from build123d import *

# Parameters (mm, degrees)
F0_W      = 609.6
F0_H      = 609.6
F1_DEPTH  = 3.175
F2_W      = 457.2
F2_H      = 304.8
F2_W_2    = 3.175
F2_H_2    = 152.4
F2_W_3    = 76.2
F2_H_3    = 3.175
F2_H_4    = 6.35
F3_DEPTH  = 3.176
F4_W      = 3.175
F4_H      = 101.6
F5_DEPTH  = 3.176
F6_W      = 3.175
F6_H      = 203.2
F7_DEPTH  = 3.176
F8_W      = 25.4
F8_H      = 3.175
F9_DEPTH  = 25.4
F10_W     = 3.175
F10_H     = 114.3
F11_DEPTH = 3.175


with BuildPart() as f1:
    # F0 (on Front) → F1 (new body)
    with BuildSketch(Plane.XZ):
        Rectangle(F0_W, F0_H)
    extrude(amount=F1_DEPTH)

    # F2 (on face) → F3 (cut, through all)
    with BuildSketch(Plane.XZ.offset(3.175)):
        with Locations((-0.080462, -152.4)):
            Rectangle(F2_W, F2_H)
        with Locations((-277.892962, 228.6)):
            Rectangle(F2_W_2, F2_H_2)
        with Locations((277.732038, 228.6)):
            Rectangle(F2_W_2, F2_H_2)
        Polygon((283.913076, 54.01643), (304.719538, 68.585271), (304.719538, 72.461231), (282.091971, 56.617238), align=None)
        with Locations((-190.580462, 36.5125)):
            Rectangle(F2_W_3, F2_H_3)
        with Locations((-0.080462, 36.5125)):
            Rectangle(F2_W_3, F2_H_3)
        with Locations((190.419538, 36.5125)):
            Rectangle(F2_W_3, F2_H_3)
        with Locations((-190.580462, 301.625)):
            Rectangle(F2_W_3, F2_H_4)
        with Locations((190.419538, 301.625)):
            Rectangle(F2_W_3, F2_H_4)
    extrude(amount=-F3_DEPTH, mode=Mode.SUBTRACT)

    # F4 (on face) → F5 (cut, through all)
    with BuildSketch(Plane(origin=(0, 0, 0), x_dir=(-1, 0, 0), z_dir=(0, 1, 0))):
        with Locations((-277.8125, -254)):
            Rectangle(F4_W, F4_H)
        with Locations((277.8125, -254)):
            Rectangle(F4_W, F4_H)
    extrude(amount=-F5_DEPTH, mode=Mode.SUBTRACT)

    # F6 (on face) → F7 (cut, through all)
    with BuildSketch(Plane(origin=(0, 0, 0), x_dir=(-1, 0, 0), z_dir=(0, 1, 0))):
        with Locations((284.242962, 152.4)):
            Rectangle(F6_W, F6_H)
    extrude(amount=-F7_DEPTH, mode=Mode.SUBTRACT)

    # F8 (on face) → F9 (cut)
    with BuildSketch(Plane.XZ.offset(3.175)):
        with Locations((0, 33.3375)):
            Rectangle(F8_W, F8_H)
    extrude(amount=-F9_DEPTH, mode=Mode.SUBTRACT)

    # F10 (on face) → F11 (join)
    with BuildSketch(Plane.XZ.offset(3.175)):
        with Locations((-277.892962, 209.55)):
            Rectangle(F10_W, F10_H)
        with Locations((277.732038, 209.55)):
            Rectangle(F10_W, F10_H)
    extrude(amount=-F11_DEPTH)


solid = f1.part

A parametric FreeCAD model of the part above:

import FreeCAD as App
import Part
import Sketcher
from FreeCAD import Vector
Q = App.Units.Quantity


def add_polygon(sketch, points):
    """Adds a closed chain of lines whose ends are joined by coincident constraints."""
    first, n = sketch.GeometryCount, len(points)
    for a, b in zip(points, points[1:] + points[:1]):
        sketch.addGeometry(Part.LineSegment(App.Vector(*a, 0), App.Vector(*b, 0)), False)
    for i in range(n):
        sketch.addConstraint(Sketcher.Constraint("Coincident", first + i, 2, first + (i + 1) % n, 1))

doc = App.newDocument("Part")
body = doc.addObject("PartDesign::Body", "Body")

# Sketch on XZ plane
sketch1 = body.newObject("Sketcher::SketchObject", "Sketch")
sketch1.AttachmentSupport = (doc.getObject("XZ_Plane"), [""])
sketch1.MapMode = "FlatFace"
add_polygon(sketch1, [(-304.8, 304.8), (-304.8, -304.8), (304.8, -304.8), (304.8, 304.8)])  # lines 0-3
sketch1.addConstraint(Sketcher.Constraint("Vertical", 0))
sketch1.addConstraint(Sketcher.Constraint("Horizontal", 1))
sketch1.addConstraint(Sketcher.Constraint("Vertical", 2))
sketch1.addConstraint(Sketcher.Constraint("Horizontal", 3))
sketch1.addConstraint(Sketcher.Constraint("Symmetric", 0, 2, 2, 2, -1, 1))
sketch1.addConstraint(Sketcher.Constraint("Equal", 3, 0))
sketch1.addConstraint(Sketcher.Constraint("DistanceX", 1, 1, 1, 2, Q("24 in")))
pad1 = body.newObject("PartDesign::Pad", "Pad")
pad1.Profile = sketch1
pad1.Length = Q("0.125 in")

# Sketch on XZ plane
sketch2 = body.newObject("Sketcher::SketchObject", "Sketch001")
sketch2.AttachmentSupport = (doc.getObject("XZ_Plane"), [""])
sketch2.MapMode = "FlatFace"
sketch2.AttachmentOffset = App.Placement(Vector(0, 0, 0.125 * 25.4), App.Rotation())
add_polygon(sketch2, [(-228.680462, 0), (-228.680462, -304.8), (228.519538, -304.8), (228.519538, 0)])  # lines 0-3
add_polygon(sketch2, [(-279.480462, 304.8), (-279.480462, 152.4), (-276.305462, 152.4), (-276.305462, 304.8)])  # lines 4-7
add_polygon(sketch2, [(276.144538, 304.8), (276.144538, 152.4), (279.319538, 152.4), (279.319538, 304.8)])  # lines 8-11
add_polygon(sketch2, [(283.913076, 54.01643), (304.719538, 68.585271), (304.719538, 72.461231), (282.091971, 56.617238)])  # lines 12-15
add_polygon(sketch2, [(-228.680462, 38.1), (-228.680462, 34.925), (-152.480462, 34.925), (-152.480462, 38.1)])  # lines 16-19
add_polygon(sketch2, [(-38.180462, 38.1), (-38.180462, 34.925), (38.019538, 34.925), (38.019538, 38.1)])  # lines 20-23
add_polygon(sketch2, [(152.319538, 38.1), (152.319538, 34.925), (228.519538, 34.925), (228.519538, 38.1)])  # lines 24-27
add_polygon(sketch2, [(-228.680462, 304.8), (-228.680462, 298.45), (-152.480462, 298.45), (-152.480462, 304.8)])  # lines 28-31
add_polygon(sketch2, [(152.319538, 304.8), (152.319538, 298.45), (228.519538, 298.45), (228.519538, 304.8)])  # lines 32-35
sketch2.addConstraint(Sketcher.Constraint("Vertical", 0))
sketch2.addConstraint(Sketcher.Constraint("Horizontal", 1))
sketch2.addConstraint(Sketcher.Constraint("Vertical", 2))
sketch2.addConstraint(Sketcher.Constraint("Horizontal", 3))
sketch2.addConstraint(Sketcher.Constraint("Vertical", 4))
sketch2.addConstraint(Sketcher.Constraint("Horizontal", 5))
sketch2.addConstraint(Sketcher.Constraint("Vertical", 6))
sketch2.addConstraint(Sketcher.Constraint("Horizontal", 7))
sketch2.addConstraint(Sketcher.Constraint("Vertical", 8))
sketch2.addConstraint(Sketcher.Constraint("Horizontal", 9))
sketch2.addConstraint(Sketcher.Constraint("Vertical", 10))
sketch2.addConstraint(Sketcher.Constraint("Horizontal", 11))
sketch2.addConstraint(Sketcher.Constraint("Vertical", 13))
sketch2.addConstraint(Sketcher.Constraint("Vertical", 16))
sketch2.addConstraint(Sketcher.Constraint("Horizontal", 17))
sketch2.addConstraint(Sketcher.Constraint("Vertical", 18))
sketch2.addConstraint(Sketcher.Constraint("Horizontal", 19))
sketch2.addConstraint(Sketcher.Constraint("Vertical", 20))
sketch2.addConstraint(Sketcher.Constraint("Horizontal", 21))
sketch2.addConstraint(Sketcher.Constraint("Vertical", 22))
sketch2.addConstraint(Sketcher.Constraint("Horizontal", 23))
sketch2.addConstraint(Sketcher.Constraint("Vertical", 24))
sketch2.addConstraint(Sketcher.Constraint("Horizontal", 25))
sketch2.addConstraint(Sketcher.Constraint("Vertical", 26))
sketch2.addConstraint(Sketcher.Constraint("Horizontal", 27))
sketch2.addConstraint(Sketcher.Constraint("Vertical", 28))
sketch2.addConstraint(Sketcher.Constraint("Horizontal", 29))
sketch2.addConstraint(Sketcher.Constraint("Vertical", 30))
sketch2.addConstraint(Sketcher.Constraint("Horizontal", 31))
sketch2.addConstraint(Sketcher.Constraint("Vertical", 32))
sketch2.addConstraint(Sketcher.Constraint("Horizontal", 33))
sketch2.addConstraint(Sketcher.Constraint("Vertical", 34))
sketch2.addConstraint(Sketcher.Constraint("Horizontal", 35))
sketch2.addConstraint(Sketcher.Constraint("Symmetric", 0, 2, 31, 2, -1))
sketch2.addConstraint(Sketcher.Constraint("Symmetric", 1, 2, 34, 2, -1))
sketch2.addConstraint(Sketcher.Constraint("PointOnObject", 2, 2, -1))
sketch2.addConstraint(Sketcher.Constraint("Parallel", 12, 14))
sketch2.addConstraint(Sketcher.Constraint("Perpendicular", 14, 15))
sketch2.addConstraint(Sketcher.Constraint("Horizontal", 5, 2, 8, 2))
sketch2.addConstraint(Sketcher.Constraint("Horizontal", 7, 2, 10, 2))
sketch2.addConstraint(Sketcher.Constraint("Horizontal", 17, 2, 20, 2))
sketch2.addConstraint(Sketcher.Constraint("Horizontal", 19, 2, 22, 2))
sketch2.addConstraint(Sketcher.Constraint("Horizontal", 21, 2, 24, 2))
sketch2.addConstraint(Sketcher.Constraint("Horizontal", 23, 2, 26, 2))
sketch2.addConstraint(Sketcher.Constraint("Horizontal", 11, 2, 30, 2))
sketch2.addConstraint(Sketcher.Constraint("Horizontal", 29, 2, 32, 2))
sketch2.addConstraint(Sketcher.Constraint("Vertical", 3, 2, 16, 2))
sketch2.addConstraint(Sketcher.Constraint("Vertical", 2, 2, 25, 2))
sketch2.addConstraint(Sketcher.Constraint("Vertical", 18, 2, 29, 2))
sketch2.addConstraint(Sketcher.Constraint("Vertical", 27, 2, 32, 2))
sketch2.addConstraint(Sketcher.Constraint("Equal", 7, 9))
sketch2.addConstraint(Sketcher.Constraint("Equal", 19, 21))
sketch2.addConstraint(Sketcher.Constraint("Equal", 23, 25))
sketch2.addConstraint(Sketcher.Constraint("Equal", 11, 16))
sketch2.addConstraint(Sketcher.Constraint("DistanceX", 1, 1, 1, 2, Q("18 in")))
sketch2.addConstraint(Sketcher.Constraint("DistanceX", 17, 1, 17, 2, Q("3 in")))
sketch2.addConstraint(Sketcher.Constraint("DistanceY", 0, 2, 0, 1, Q("12 in")))
sketch2.addConstraint(Sketcher.Constraint("DistanceY", 4, 2, 4, 1, Q("6 in")))
sketch2.addConstraint(Sketcher.Constraint("Distance", 12, Q("1 in")))
sketch2.addConstraint(Sketcher.Constraint("Angle", 12, Q("34.999999 deg")))
sketch2.addConstraint(Sketcher.Constraint("DistanceX", 4, 2, 3, 2, Q("2 in")))
sketch2.addConstraint(Sketcher.Constraint("DistanceX", 2, 2, 9, 2, Q("2 in")))
sketch2.addConstraint(Sketcher.Constraint("DistanceX", 9, 2, 12, 2, Q("1 in")))
sketch2.addConstraint(Sketcher.Constraint("DistanceY", 28, 2, 28, 1, Q("0.25 in")))
sketch2.addConstraint(Sketcher.Constraint("DistanceY", -1, 1, 18, 2, Q("1.5 in")))
sketch2.addConstraint(Sketcher.Constraint("DistanceX", 17, 2, 20, 2, Q("4.5 in")))
sketch2.addConstraint(Sketcher.Constraint("DistanceX", 5, 1, 5, 2, Q("0.125 in")))
sketch2.addConstraint(Sketcher.Constraint("Distance", 15, Q("0.125 in")))
sketch2.addConstraint(Sketcher.Constraint("DistanceX", 0, 2, -1, 1, 228.680462))
sketch2.addConstraint(Sketcher.Constraint("DistanceY", -1, 1, 12, 2, 68.585271))
pocket1 = body.newObject("PartDesign::Pocket", "Pocket")
pocket1.Profile = sketch2
pocket1.Type = "ThroughAll"

# Sketch on XZ plane
sketch3 = body.newObject("Sketcher::SketchObject", "Sketch002")
sketch3.AttachmentSupport = (doc.getObject("XZ_Plane"), [""])
sketch3.MapMode = "FlatFace"
add_polygon(sketch3, [(279.4, -203.2), (279.4, -304.8), (276.225, -304.8), (276.225, -203.2)])  # lines 0-3
add_polygon(sketch3, [(-276.225, -203.2), (-276.225, -304.8), (-279.4, -304.8), (-279.4, -203.2)])  # lines 4-7
sketch3.addConstraint(Sketcher.Constraint("Vertical", 0))
sketch3.addConstraint(Sketcher.Constraint("Horizontal", 1))
sketch3.addConstraint(Sketcher.Constraint("Vertical", 2))
sketch3.addConstraint(Sketcher.Constraint("Horizontal", 3))
sketch3.addConstraint(Sketcher.Constraint("Vertical", 4))
sketch3.addConstraint(Sketcher.Constraint("Horizontal", 5))
sketch3.addConstraint(Sketcher.Constraint("Vertical", 6))
sketch3.addConstraint(Sketcher.Constraint("Horizontal", 7))
sketch3.addConstraint(Sketcher.Constraint("Symmetric", 1, 2, 4, 2, -2))
sketch3.addConstraint(Sketcher.Constraint("Symmetric", 3, 2, 6, 2, -2))
sketch3.addConstraint(Sketcher.Constraint("DistanceY", 0, 2, 0, 1, Q("4 in")))
sketch3.addConstraint(Sketcher.Constraint("DistanceX", -1, 1, 0, 2, Q("11 in")))
sketch3.addConstraint(Sketcher.Constraint("DistanceY", 0, 2, -1, 1, Q("12 in")))
sketch3.addConstraint(Sketcher.Constraint("DistanceX", 1, 2, 1, 1, Q("0.125 in")))
pocket2 = body.newObject("PartDesign::Pocket", "Pocket001")
pocket2.Profile = sketch3
pocket2.Type = "ThroughAll"
pocket2.Reversed = True

# Sketch on XZ plane
sketch4 = body.newObject("Sketcher::SketchObject", "Sketch003")
sketch4.AttachmentSupport = (doc.getObject("XZ_Plane"), [""])
sketch4.MapMode = "FlatFace"
add_polygon(sketch4, [(-282.655462, 254), (-282.655462, 50.8), (-285.830462, 50.8), (-285.830462, 254)])  # lines 0-3
sketch4.addConstraint(Sketcher.Constraint("Vertical", 0))
sketch4.addConstraint(Sketcher.Constraint("Horizontal", 1))
sketch4.addConstraint(Sketcher.Constraint("Vertical", 2))
sketch4.addConstraint(Sketcher.Constraint("Horizontal", 3))
sketch4.addConstraint(Sketcher.Constraint("DistanceY", 0, 2, 0, 1, Q("8 in")))
sketch4.addConstraint(Sketcher.Constraint("DistanceY", -1, 1, 0, 2, Q("2 in")))
sketch4.addConstraint(Sketcher.Constraint("DistanceX", 1, 2, 1, 1, Q("0.125 in")))
sketch4.addConstraint(Sketcher.Constraint("DistanceX", 0, 2, -1, 1, 282.655462))
pocket3 = body.newObject("PartDesign::Pocket", "Pocket002")
pocket3.Profile = sketch4
pocket3.Type = "ThroughAll"
pocket3.Reversed = True

# Sketch on XZ plane
sketch5 = body.newObject("Sketcher::SketchObject", "Sketch004")
sketch5.AttachmentSupport = (doc.getObject("XZ_Plane"), [""])
sketch5.MapMode = "FlatFace"
sketch5.AttachmentOffset = App.Placement(Vector(0, 0, 0.125 * 25.4), App.Rotation())
add_polygon(sketch5, [(-12.7, 34.925), (-12.7, 31.75), (12.7, 31.75), (12.7, 34.925)])  # lines 0-3
sketch5.addConstraint(Sketcher.Constraint("Vertical", 0))
sketch5.addConstraint(Sketcher.Constraint("Horizontal", 1))
sketch5.addConstraint(Sketcher.Constraint("Vertical", 2))
sketch5.addConstraint(Sketcher.Constraint("Horizontal", 3))
sketch5.addConstraint(Sketcher.Constraint("DistanceX", 1, 1, 1, 2, Q("1 in")))
sketch5.addConstraint(Sketcher.Constraint("DistanceX", 0, 2, -1, 1, Q("0.5 in")))
sketch5.addConstraint(Sketcher.Constraint("DistanceY", 0, 2, 0, 1, Q("0.125 in")))
sketch5.addConstraint(Sketcher.Constraint("DistanceY", -1, 1, 0, 2, Q("1.25 in")))
pocket4 = body.newObject("PartDesign::Pocket", "Pocket003")
pocket4.Profile = sketch5
pocket4.Length = Q("1 in")

# Sketch on XZ plane
sketch6 = body.newObject("Sketcher::SketchObject", "Sketch005")
sketch6.AttachmentSupport = (doc.getObject("XZ_Plane"), [""])
sketch6.MapMode = "FlatFace"
sketch6.AttachmentOffset = App.Placement(Vector(0, 0, 0.125 * 25.4), App.Rotation())
add_polygon(sketch6, [(-279.480462, 266.7), (-279.480462, 152.4), (-276.305462, 152.4), (-276.305462, 266.7)])  # lines 0-3
add_polygon(sketch6, [(276.144538, 266.7), (276.144538, 152.4), (279.319538, 152.4), (279.319538, 266.7)])  # lines 4-7
sketch6.addConstraint(Sketcher.Constraint("Vertical", 0))
sketch6.addConstraint(Sketcher.Constraint("Horizontal", 1))
sketch6.addConstraint(Sketcher.Constraint("Vertical", 2))
sketch6.addConstraint(Sketcher.Constraint("Horizontal", 3))
sketch6.addConstraint(Sketcher.Constraint("Vertical", 4))
sketch6.addConstraint(Sketcher.Constraint("Horizontal", 5))
sketch6.addConstraint(Sketcher.Constraint("Vertical", 6))
sketch6.addConstraint(Sketcher.Constraint("Horizontal", 7))
sketch6.addConstraint(Sketcher.Constraint("Horizontal", 1, 2, 4, 2))
sketch6.addConstraint(Sketcher.Constraint("Horizontal", 3, 2, 6, 2))
sketch6.addConstraint(Sketcher.Constraint("Equal", 3, 5))
sketch6.addConstraint(Sketcher.Constraint("DistanceY", 0, 2, 0, 1, Q("4.5 in")))
sketch6.addConstraint(Sketcher.Constraint("DistanceY", -1, 1, 0, 2, Q("6 in")))
sketch6.addConstraint(Sketcher.Constraint("DistanceX", 0, 2, 5, 2, Q("22 in")))
sketch6.addConstraint(Sketcher.Constraint("DistanceX", 1, 1, 1, 2, Q("0.125 in")))
sketch6.addConstraint(Sketcher.Constraint("DistanceX", 0, 2, -1, 1, 279.480462))
pad2 = body.newObject("PartDesign::Pad", "Pad001")
pad2.Profile = sketch6
pad2.Length = Q("0.125 in")
pad2.Reversed = True

doc.recompute()
